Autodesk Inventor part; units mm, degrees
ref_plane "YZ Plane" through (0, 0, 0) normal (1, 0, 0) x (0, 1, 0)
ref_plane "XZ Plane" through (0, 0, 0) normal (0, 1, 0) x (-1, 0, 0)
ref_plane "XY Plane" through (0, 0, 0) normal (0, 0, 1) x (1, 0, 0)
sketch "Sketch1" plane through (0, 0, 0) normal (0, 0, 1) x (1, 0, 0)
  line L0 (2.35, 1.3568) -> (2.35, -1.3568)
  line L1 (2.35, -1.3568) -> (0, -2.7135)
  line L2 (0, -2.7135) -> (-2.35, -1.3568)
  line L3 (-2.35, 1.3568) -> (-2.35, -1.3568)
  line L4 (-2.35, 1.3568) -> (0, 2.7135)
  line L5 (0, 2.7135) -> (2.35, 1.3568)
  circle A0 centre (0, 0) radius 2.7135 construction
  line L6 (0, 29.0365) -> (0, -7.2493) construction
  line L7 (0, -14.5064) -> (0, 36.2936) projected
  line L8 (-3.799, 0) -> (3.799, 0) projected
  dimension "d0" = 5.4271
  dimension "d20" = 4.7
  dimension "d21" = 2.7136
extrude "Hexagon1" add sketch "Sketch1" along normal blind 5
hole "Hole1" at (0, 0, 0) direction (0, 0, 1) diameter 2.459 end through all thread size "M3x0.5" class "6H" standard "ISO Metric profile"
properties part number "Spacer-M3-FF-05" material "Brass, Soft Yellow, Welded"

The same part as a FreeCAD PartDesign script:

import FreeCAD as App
import Part
import Sketcher
from FreeCAD import Vector
Q = App.Units.Quantity

doc = App.newDocument("Part")
body = doc.addObject("PartDesign::Body", "Body")

# Sketch on XY plane
sketch1 = body.newObject("Sketcher::SketchObject", "Sketch")
sketch1.AttachmentSupport = (doc.getObject("XY_Plane"), [""])
sketch1.MapMode = "FlatFace"
sketch1.addGeometry(Part.LineSegment(Vector(2.35, 1.3568, 0), Vector(0, 2.7135, 0)), False)
sketch1.addGeometry(Part.LineSegment(Vector(0, 2.7135, 0), Vector(-2.35, 1.3568, 0)), False)
sketch1.addGeometry(Part.LineSegment(Vector(-2.35, 1.3568, 0), Vector(-2.35, -1.3568, 0)), False)
sketch1.addGeometry(Part.LineSegment(Vector(-2.35, -1.3568, 0), Vector(0, -2.7135, 0)), False)
sketch1.addGeometry(Part.LineSegment(Vector(0, -2.7135, 0), Vector(2.35, -1.3568, 0)), False)
sketch1.addGeometry(Part.LineSegment(Vector(2.35, -1.3568, 0), Vector(2.35, 1.3568, 0)), False)
sketch1.addConstraint(Sketcher.Constraint("Coincident", 0, 2, 1, 1))
sketch1.addConstraint(Sketcher.Constraint("Coincident", 1, 2, 2, 1))
sketch1.addConstraint(Sketcher.Constraint("Coincident", 2, 2, 3, 1))
sketch1.addConstraint(Sketcher.Constraint("Coincident", 3, 2, 4, 1))
sketch1.addConstraint(Sketcher.Constraint("Coincident", 4, 2, 5, 1))
sketch1.addConstraint(Sketcher.Constraint("Coincident", 5, 2, 0, 1))
sketch1.addConstraint(Sketcher.Constraint("Vertical", 2))
sketch1.addConstraint(Sketcher.Constraint("Vertical", 5))
sketch1.addConstraint(Sketcher.Constraint("Symmetric", 0, 2, 3, 2, -1, 1))
sketch1.addConstraint(Sketcher.Constraint("Symmetric", 1, 2, 4, 2, -1, 1))
sketch1.addConstraint(Sketcher.Constraint("PointOnObject", 0, 2, -2))
sketch1.addConstraint(Sketcher.Constraint("Parallel", 0, 3))
sketch1.addConstraint(Sketcher.Constraint("Horizontal", 2, 2, 4, 2))
sketch1.addConstraint(Sketcher.Constraint("DistanceX", 2, 2, 4, 2, Q("4.7 mm")))
sketch1.addConstraint(Sketcher.Constraint("DistanceY", 2, 2, 2, 1, Q("2.7136 mm")))
sketch1.addConstraint(Sketcher.Constraint("DistanceY", 3, 2, 0, 2, Q("5.427 mm")))
pad1 = body.newObject("PartDesign::Pad", "Pad")
pad1.Profile = sketch1
pad1.Length = 5

# Sketch on XY plane
sketch2 = body.newObject("Sketcher::SketchObject", "Sketch001")
sketch2.AttachmentSupport = (doc.getObject("XY_Plane"), [""])
sketch2.MapMode = "FlatFace"
sketch2.addGeometry(Part.Circle(Vector(0, 0, 0), Vector(0, 0, 1), 1.2295), False)
sketch2.addConstraint(Sketcher.Constraint("Coincident", 0, 3, -1, 1))
sketch2.addConstraint(Sketcher.Constraint("Diameter", 0, Q("2.459 mm")))
doc.recompute()
hole = body.newObject("PartDesign::Hole", "Hole")
hole.Profile = sketch2
hole.ThreadType = "None"
hole.Diameter = 2.459
hole.DepthType = "ThroughAll"
hole.Reversed = True

doc.recompute()
